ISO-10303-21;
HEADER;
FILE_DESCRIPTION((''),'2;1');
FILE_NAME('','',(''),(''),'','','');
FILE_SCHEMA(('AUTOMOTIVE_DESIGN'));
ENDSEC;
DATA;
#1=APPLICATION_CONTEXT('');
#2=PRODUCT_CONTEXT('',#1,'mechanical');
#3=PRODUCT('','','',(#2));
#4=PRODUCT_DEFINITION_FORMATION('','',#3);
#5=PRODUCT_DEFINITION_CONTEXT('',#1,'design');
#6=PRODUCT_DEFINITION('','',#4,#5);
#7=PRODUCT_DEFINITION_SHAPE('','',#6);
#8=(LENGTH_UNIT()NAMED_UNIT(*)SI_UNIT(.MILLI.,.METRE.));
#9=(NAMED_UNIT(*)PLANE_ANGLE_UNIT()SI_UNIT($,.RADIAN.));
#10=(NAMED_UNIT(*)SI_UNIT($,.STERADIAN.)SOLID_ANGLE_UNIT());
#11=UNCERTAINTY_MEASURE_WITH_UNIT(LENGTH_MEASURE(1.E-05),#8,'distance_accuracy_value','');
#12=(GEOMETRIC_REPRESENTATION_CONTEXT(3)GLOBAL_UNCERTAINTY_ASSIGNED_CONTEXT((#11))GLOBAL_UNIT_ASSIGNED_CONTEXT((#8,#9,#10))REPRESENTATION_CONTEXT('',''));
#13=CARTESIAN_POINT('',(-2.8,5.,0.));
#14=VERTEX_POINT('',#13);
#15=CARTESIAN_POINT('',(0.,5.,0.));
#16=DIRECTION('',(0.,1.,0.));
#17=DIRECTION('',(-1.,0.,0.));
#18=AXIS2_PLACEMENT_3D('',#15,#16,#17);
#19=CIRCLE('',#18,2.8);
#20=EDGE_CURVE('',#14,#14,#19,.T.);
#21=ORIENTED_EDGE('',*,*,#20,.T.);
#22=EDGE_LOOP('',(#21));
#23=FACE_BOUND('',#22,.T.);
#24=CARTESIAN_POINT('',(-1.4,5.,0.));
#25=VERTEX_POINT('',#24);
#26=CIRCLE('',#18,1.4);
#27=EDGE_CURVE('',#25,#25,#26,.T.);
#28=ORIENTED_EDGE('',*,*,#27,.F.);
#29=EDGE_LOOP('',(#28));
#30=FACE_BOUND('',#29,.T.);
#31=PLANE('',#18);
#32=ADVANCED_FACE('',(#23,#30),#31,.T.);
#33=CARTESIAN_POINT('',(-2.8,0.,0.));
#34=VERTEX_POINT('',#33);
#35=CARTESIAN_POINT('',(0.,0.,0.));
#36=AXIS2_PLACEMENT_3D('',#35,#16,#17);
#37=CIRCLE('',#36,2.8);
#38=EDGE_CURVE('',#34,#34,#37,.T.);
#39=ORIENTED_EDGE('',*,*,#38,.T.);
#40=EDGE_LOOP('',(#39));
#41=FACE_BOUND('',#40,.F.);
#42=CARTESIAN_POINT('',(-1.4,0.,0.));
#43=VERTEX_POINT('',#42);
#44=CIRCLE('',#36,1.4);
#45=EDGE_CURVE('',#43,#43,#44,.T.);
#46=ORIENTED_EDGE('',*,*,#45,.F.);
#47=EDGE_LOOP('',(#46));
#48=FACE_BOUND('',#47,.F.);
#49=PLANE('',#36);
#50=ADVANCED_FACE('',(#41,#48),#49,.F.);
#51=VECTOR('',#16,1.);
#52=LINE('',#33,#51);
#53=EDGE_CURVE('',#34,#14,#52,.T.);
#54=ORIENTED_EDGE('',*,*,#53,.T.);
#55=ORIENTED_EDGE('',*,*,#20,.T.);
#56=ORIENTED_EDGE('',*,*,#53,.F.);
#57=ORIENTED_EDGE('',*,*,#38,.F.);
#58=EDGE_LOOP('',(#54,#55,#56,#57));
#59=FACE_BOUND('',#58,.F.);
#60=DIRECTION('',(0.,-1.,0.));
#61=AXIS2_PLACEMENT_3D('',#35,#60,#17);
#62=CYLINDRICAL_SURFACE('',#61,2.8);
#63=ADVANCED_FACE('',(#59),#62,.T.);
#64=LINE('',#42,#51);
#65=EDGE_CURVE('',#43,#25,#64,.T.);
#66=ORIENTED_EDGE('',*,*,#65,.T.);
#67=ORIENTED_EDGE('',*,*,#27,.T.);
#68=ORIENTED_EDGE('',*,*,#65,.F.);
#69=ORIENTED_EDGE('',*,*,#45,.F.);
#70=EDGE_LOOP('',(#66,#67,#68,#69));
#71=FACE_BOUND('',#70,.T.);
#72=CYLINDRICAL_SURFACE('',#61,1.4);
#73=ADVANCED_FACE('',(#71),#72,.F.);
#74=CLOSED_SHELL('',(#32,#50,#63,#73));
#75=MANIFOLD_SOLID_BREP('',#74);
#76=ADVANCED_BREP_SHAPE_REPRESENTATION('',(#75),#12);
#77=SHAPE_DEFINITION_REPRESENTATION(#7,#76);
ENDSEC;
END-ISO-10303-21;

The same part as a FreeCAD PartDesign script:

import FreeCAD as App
import Part
import Sketcher

V = App.Vector

doc = App.newDocument("Part")
body = doc.addObject("PartDesign::Body", "Body")

# Sketch on XZ plane
sketch1 = doc.addObject("Sketcher::SketchObject", "Sketch")
body.addObject(sketch1)
sketch1.AttachmentSupport = (doc.XZ_Plane, [""])
sketch1.MapMode = "FlatFace"
sketch1.addGeometry(Part.Circle(V(0, 0, 0), V(0, 0, 1), 2.8), False)
sketch1.addGeometry(Part.Circle(V(0, 0, 0), V(0, 0, 1), 1.4), False)
sketch1.addConstraint(Sketcher.Constraint("Coincident", 0, 3, -1, 1))
sketch1.addConstraint(Sketcher.Constraint("Coincident", 1, 3, -1, 1))
sketch1.addConstraint(Sketcher.Constraint("Diameter", 0, 5.6))
sketch1.addConstraint(Sketcher.Constraint("Diameter", 1, 2.8))
pad1 = doc.addObject("PartDesign::Pad", "Pad")
body.addObject(pad1)
pad1.Profile = sketch1
pad1.Length = 5
pad1.Reversed = True

doc.recompute()
